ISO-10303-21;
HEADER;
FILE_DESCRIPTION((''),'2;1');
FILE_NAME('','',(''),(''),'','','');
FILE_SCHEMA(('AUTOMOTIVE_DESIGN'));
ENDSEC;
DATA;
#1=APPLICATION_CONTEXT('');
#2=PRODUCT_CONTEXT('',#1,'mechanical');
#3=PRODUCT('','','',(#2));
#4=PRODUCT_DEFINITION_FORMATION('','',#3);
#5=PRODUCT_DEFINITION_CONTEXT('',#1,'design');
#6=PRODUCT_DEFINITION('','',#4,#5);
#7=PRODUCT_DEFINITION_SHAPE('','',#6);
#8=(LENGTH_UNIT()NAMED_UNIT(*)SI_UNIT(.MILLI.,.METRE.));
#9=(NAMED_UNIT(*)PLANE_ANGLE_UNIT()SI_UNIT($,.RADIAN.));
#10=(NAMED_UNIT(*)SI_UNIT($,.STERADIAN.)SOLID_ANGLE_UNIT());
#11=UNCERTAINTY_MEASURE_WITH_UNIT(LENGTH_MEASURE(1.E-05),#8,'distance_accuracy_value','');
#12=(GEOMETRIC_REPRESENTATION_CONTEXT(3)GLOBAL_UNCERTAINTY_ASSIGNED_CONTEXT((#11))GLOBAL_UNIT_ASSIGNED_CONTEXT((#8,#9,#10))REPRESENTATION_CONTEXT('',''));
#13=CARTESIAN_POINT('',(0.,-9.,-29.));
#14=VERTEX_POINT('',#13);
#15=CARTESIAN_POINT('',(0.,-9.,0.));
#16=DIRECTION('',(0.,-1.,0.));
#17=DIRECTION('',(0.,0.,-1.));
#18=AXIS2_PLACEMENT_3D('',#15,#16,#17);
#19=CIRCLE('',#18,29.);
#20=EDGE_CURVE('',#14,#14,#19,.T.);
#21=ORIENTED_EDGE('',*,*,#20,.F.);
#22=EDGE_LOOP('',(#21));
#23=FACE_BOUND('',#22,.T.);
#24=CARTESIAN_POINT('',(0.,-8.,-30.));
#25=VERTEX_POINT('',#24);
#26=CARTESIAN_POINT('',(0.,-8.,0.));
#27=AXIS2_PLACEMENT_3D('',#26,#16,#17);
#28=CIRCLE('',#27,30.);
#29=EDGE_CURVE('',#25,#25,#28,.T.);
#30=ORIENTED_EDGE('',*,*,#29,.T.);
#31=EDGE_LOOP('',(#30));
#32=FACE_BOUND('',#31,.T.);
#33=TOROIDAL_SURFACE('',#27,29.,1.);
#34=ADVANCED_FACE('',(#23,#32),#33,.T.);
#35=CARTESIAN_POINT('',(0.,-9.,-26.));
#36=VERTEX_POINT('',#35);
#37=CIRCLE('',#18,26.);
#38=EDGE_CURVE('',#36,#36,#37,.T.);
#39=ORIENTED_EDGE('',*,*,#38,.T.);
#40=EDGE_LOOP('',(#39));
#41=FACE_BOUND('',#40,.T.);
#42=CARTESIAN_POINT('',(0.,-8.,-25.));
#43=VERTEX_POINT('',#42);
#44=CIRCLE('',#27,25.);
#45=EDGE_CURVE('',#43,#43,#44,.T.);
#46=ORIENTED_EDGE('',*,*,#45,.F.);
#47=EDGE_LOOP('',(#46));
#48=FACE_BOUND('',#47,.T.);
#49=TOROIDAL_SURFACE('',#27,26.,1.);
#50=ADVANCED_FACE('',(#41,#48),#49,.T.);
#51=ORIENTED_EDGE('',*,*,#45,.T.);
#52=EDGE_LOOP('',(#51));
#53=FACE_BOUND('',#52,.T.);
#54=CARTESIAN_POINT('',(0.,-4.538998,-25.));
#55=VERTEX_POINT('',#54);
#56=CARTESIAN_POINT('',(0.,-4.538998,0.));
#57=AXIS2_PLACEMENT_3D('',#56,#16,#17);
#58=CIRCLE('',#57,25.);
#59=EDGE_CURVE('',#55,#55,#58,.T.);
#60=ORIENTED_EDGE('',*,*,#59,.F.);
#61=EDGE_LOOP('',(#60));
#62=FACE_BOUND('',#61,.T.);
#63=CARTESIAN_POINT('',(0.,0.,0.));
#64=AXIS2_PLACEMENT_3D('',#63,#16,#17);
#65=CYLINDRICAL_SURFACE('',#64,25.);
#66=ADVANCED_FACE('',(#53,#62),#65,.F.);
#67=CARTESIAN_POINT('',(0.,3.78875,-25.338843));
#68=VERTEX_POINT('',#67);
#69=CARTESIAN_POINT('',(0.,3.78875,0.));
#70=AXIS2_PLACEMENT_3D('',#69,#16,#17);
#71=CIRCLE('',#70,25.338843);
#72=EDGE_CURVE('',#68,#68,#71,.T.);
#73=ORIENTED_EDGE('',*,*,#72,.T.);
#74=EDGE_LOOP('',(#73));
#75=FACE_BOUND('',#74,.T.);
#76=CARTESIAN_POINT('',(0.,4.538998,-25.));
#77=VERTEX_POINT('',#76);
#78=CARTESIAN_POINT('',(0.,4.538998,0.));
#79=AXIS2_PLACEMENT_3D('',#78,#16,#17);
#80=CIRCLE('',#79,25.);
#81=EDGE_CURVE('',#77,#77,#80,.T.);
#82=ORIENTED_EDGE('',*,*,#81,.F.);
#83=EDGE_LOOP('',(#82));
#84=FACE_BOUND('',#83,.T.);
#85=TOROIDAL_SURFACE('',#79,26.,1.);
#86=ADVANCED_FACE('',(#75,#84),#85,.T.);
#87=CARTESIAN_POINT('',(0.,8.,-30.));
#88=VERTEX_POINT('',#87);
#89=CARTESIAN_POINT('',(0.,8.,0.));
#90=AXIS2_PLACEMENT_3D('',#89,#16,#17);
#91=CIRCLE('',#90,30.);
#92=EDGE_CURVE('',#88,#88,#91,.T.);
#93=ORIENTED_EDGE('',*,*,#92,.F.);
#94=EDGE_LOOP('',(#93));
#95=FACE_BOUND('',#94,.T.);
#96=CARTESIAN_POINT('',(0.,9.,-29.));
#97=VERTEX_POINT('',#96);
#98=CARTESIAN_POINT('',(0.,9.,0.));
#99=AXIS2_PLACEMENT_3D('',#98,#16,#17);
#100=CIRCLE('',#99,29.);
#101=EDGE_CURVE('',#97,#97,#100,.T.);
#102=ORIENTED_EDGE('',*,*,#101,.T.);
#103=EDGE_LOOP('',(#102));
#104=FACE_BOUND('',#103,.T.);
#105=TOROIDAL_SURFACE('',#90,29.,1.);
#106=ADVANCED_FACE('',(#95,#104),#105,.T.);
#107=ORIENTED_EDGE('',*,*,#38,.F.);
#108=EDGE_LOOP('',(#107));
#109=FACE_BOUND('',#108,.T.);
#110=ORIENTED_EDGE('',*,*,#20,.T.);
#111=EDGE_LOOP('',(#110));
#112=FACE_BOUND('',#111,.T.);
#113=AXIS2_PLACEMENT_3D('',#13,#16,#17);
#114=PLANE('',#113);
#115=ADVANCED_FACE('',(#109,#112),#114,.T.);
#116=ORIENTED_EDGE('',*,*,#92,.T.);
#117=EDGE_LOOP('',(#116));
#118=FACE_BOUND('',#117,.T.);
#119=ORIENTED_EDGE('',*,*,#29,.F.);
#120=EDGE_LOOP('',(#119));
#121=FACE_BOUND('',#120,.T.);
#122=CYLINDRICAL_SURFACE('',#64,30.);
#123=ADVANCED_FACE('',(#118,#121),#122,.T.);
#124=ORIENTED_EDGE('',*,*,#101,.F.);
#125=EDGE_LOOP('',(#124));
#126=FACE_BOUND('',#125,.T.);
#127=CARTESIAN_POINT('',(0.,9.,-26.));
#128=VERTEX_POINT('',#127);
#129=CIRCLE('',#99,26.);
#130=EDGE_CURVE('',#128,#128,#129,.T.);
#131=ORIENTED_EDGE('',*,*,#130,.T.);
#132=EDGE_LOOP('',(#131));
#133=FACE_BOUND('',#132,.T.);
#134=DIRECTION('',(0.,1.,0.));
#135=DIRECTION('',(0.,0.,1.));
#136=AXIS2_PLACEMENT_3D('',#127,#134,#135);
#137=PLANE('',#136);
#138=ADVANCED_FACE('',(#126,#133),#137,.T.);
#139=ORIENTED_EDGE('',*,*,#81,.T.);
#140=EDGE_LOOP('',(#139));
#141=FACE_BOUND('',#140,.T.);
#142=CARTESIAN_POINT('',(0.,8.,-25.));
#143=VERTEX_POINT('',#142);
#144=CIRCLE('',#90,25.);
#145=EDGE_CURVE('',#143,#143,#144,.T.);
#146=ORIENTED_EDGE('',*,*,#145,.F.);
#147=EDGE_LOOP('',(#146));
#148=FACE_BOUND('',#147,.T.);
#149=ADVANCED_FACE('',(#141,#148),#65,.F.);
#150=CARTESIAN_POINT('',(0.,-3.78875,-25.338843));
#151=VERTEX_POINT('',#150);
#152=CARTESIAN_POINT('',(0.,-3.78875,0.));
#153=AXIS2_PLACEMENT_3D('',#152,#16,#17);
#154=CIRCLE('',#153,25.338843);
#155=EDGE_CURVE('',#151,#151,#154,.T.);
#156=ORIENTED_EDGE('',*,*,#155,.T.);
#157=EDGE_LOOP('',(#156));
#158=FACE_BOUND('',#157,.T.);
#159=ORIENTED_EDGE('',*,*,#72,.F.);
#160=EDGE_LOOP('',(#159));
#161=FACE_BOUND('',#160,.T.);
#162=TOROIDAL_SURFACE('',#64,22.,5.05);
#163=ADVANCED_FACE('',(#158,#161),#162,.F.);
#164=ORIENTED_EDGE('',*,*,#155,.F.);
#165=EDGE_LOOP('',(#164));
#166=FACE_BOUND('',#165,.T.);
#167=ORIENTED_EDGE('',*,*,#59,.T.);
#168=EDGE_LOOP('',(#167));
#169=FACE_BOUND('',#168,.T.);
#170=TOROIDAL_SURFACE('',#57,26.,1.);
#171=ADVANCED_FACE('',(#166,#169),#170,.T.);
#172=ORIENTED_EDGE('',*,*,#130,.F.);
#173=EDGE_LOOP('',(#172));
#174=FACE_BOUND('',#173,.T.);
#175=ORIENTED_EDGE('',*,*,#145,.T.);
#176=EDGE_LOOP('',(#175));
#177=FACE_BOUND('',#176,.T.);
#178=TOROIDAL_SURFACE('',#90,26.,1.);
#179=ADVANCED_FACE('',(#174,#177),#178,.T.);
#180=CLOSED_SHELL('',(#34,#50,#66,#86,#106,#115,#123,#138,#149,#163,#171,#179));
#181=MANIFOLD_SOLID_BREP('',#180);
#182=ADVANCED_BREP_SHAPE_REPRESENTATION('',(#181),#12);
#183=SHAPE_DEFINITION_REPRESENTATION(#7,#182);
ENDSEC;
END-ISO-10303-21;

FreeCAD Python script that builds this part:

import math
import FreeCAD as App
import Part
import Sketcher

doc = App.newDocument("Part")
params = doc.addObject("Spreadsheet::Sheet", "Params")
for row, (alias, value) in enumerate([
    ("sketch1_radius", "1 mm"),
    ("sketch1_width", "16 mm"),
    ("sketch1_height", "3 mm"),
    ("sketch1_radius2", "5.05 mm"),
    ("revolution_angle", "360 deg"),
], start=1):
    params.set(f"A{row}", alias)
    params.set(f"B{row}", "=" + value)
    params.setAlias(f"B{row}", alias)

body = doc.addObject("PartDesign::Body", "Body")

# Sketch on YZ plane
sketch1 = body.newObject("Sketcher::SketchObject", "Sketch")
sketch1.AttachmentSupport = (doc.getObject("YZ_Plane"), [""])
sketch1.MapMode = "FlatFace"
sketch1.addGeometry([
    Part.LineSegment(App.Vector(-4.5, -25, 0), App.Vector(-8, -25, 0)),  # 0
    Part.ArcOfCircle(Part.Circle(App.Vector(-8, -26, 0), App.Vector(0, 0, 1), 1), math.radians(90), math.radians(180)),  # 1
    Part.LineSegment(App.Vector(-9, -26, 0), App.Vector(-9, -29, 0)),  # 2
    Part.ArcOfCircle(Part.Circle(App.Vector(-8, -29, 0), App.Vector(0, 0, 1), 1), math.radians(-180), math.radians(-90)),  # 3
    Part.LineSegment(App.Vector(-8, -30, 0), App.Vector(8, -30, 0)),  # 4
    Part.ArcOfCircle(Part.Circle(App.Vector(8, -29, 0), App.Vector(0, 0, 1), 1), math.radians(-90), math.radians(0)),  # 5
    Part.LineSegment(App.Vector(9, -29, 0), App.Vector(9, -26, 0)),  # 6
    Part.ArcOfCircle(Part.Circle(App.Vector(8, -26, 0), App.Vector(0, 0, 1), 1), math.radians(0), math.radians(90)),  # 7
    Part.LineSegment(App.Vector(8, -25, 0), App.Vector(4.5, -25, 0)),  # 8
    Part.ArcOfCircle(Part.Circle(App.Vector(4.5, -26, 0), App.Vector(0, 0, 1), 1), math.radians(90), math.radians(139)),  # 9
    Part.ArcOfCircle(Part.Circle(App.Vector(0, -22, 0), App.Vector(0, 0, 1), 5), math.radians(-139), math.radians(-41)),  # 10
    Part.ArcOfCircle(Part.Circle(App.Vector(-4.5, -26, 0), App.Vector(0, 0, 1), 1), math.radians(41), math.radians(90)),  # 11
], False)
sketch1.addConstraint([
    Sketcher.Constraint("Tangent", 0, 2, 1, 1),
    Sketcher.Constraint("Tangent", 1, 2, 2, 1),
    Sketcher.Constraint("Tangent", 2, 2, 3, 1),
    Sketcher.Constraint("Tangent", 3, 2, 4, 1),
    Sketcher.Constraint("Tangent", 4, 2, 5, 1),
    Sketcher.Constraint("Tangent", 5, 2, 6, 1),
    Sketcher.Constraint("Tangent", 6, 2, 7, 1),
    Sketcher.Constraint("Tangent", 7, 2, 8, 1),
    Sketcher.Constraint("Tangent", 8, 2, 9, 1),
    Sketcher.Constraint("Tangent", 9, 2, 10, 2),
    Sketcher.Constraint("Tangent", 10, 1, 11, 1),
    Sketcher.Constraint("Tangent", 11, 2, 0, 1),
    Sketcher.Constraint("Horizontal", 0),
    Sketcher.Constraint("Vertical", 2),
    Sketcher.Constraint("Horizontal", 4),
    Sketcher.Constraint("Vertical", 6),
    Sketcher.Constraint("Horizontal", 8),
    Sketcher.Constraint("Equal", 1, 3),
    Sketcher.Constraint("Equal", 3, 5),
    Sketcher.Constraint("Equal", 5, 7),
    Sketcher.Constraint("Equal", 7, 9),
    Sketcher.Constraint("Equal", 9, 11),
    Sketcher.Constraint("Symmetric", 1, 3, 7, 3, -2),
    Sketcher.Constraint("PointOnObject", 10, 3, -2),
    Sketcher.Constraint("Radius", 1, 1.0),
    Sketcher.Constraint("DistanceX", 4, 1, 4, 2, 16.0),
    Sketcher.Constraint("DistanceY", 2, 2, 2, 1, 3.0),
    Sketcher.Constraint("Radius", 10, 5.05),
    Sketcher.Constraint("DistanceY", 1, 3, -1, 1, 26.0),
    Sketcher.Constraint("DistanceY", 10, 3, -1, 1, 22.0),
])
sketch1.setExpression("Constraints[24]", "Params.sketch1_radius")
sketch1.setExpression("Constraints[25]", "Params.sketch1_width")
sketch1.setExpression("Constraints[26]", "Params.sketch1_height")
sketch1.setExpression("Constraints[27]", "Params.sketch1_radius2")
revolution = body.newObject("PartDesign::Revolution", "Revolution")
revolution.Profile = sketch1
revolution.ReferenceAxis = (sketch1, ["H_Axis"])
revolution.setExpression("Angle", "Params.revolution_angle")

doc.recompute()
